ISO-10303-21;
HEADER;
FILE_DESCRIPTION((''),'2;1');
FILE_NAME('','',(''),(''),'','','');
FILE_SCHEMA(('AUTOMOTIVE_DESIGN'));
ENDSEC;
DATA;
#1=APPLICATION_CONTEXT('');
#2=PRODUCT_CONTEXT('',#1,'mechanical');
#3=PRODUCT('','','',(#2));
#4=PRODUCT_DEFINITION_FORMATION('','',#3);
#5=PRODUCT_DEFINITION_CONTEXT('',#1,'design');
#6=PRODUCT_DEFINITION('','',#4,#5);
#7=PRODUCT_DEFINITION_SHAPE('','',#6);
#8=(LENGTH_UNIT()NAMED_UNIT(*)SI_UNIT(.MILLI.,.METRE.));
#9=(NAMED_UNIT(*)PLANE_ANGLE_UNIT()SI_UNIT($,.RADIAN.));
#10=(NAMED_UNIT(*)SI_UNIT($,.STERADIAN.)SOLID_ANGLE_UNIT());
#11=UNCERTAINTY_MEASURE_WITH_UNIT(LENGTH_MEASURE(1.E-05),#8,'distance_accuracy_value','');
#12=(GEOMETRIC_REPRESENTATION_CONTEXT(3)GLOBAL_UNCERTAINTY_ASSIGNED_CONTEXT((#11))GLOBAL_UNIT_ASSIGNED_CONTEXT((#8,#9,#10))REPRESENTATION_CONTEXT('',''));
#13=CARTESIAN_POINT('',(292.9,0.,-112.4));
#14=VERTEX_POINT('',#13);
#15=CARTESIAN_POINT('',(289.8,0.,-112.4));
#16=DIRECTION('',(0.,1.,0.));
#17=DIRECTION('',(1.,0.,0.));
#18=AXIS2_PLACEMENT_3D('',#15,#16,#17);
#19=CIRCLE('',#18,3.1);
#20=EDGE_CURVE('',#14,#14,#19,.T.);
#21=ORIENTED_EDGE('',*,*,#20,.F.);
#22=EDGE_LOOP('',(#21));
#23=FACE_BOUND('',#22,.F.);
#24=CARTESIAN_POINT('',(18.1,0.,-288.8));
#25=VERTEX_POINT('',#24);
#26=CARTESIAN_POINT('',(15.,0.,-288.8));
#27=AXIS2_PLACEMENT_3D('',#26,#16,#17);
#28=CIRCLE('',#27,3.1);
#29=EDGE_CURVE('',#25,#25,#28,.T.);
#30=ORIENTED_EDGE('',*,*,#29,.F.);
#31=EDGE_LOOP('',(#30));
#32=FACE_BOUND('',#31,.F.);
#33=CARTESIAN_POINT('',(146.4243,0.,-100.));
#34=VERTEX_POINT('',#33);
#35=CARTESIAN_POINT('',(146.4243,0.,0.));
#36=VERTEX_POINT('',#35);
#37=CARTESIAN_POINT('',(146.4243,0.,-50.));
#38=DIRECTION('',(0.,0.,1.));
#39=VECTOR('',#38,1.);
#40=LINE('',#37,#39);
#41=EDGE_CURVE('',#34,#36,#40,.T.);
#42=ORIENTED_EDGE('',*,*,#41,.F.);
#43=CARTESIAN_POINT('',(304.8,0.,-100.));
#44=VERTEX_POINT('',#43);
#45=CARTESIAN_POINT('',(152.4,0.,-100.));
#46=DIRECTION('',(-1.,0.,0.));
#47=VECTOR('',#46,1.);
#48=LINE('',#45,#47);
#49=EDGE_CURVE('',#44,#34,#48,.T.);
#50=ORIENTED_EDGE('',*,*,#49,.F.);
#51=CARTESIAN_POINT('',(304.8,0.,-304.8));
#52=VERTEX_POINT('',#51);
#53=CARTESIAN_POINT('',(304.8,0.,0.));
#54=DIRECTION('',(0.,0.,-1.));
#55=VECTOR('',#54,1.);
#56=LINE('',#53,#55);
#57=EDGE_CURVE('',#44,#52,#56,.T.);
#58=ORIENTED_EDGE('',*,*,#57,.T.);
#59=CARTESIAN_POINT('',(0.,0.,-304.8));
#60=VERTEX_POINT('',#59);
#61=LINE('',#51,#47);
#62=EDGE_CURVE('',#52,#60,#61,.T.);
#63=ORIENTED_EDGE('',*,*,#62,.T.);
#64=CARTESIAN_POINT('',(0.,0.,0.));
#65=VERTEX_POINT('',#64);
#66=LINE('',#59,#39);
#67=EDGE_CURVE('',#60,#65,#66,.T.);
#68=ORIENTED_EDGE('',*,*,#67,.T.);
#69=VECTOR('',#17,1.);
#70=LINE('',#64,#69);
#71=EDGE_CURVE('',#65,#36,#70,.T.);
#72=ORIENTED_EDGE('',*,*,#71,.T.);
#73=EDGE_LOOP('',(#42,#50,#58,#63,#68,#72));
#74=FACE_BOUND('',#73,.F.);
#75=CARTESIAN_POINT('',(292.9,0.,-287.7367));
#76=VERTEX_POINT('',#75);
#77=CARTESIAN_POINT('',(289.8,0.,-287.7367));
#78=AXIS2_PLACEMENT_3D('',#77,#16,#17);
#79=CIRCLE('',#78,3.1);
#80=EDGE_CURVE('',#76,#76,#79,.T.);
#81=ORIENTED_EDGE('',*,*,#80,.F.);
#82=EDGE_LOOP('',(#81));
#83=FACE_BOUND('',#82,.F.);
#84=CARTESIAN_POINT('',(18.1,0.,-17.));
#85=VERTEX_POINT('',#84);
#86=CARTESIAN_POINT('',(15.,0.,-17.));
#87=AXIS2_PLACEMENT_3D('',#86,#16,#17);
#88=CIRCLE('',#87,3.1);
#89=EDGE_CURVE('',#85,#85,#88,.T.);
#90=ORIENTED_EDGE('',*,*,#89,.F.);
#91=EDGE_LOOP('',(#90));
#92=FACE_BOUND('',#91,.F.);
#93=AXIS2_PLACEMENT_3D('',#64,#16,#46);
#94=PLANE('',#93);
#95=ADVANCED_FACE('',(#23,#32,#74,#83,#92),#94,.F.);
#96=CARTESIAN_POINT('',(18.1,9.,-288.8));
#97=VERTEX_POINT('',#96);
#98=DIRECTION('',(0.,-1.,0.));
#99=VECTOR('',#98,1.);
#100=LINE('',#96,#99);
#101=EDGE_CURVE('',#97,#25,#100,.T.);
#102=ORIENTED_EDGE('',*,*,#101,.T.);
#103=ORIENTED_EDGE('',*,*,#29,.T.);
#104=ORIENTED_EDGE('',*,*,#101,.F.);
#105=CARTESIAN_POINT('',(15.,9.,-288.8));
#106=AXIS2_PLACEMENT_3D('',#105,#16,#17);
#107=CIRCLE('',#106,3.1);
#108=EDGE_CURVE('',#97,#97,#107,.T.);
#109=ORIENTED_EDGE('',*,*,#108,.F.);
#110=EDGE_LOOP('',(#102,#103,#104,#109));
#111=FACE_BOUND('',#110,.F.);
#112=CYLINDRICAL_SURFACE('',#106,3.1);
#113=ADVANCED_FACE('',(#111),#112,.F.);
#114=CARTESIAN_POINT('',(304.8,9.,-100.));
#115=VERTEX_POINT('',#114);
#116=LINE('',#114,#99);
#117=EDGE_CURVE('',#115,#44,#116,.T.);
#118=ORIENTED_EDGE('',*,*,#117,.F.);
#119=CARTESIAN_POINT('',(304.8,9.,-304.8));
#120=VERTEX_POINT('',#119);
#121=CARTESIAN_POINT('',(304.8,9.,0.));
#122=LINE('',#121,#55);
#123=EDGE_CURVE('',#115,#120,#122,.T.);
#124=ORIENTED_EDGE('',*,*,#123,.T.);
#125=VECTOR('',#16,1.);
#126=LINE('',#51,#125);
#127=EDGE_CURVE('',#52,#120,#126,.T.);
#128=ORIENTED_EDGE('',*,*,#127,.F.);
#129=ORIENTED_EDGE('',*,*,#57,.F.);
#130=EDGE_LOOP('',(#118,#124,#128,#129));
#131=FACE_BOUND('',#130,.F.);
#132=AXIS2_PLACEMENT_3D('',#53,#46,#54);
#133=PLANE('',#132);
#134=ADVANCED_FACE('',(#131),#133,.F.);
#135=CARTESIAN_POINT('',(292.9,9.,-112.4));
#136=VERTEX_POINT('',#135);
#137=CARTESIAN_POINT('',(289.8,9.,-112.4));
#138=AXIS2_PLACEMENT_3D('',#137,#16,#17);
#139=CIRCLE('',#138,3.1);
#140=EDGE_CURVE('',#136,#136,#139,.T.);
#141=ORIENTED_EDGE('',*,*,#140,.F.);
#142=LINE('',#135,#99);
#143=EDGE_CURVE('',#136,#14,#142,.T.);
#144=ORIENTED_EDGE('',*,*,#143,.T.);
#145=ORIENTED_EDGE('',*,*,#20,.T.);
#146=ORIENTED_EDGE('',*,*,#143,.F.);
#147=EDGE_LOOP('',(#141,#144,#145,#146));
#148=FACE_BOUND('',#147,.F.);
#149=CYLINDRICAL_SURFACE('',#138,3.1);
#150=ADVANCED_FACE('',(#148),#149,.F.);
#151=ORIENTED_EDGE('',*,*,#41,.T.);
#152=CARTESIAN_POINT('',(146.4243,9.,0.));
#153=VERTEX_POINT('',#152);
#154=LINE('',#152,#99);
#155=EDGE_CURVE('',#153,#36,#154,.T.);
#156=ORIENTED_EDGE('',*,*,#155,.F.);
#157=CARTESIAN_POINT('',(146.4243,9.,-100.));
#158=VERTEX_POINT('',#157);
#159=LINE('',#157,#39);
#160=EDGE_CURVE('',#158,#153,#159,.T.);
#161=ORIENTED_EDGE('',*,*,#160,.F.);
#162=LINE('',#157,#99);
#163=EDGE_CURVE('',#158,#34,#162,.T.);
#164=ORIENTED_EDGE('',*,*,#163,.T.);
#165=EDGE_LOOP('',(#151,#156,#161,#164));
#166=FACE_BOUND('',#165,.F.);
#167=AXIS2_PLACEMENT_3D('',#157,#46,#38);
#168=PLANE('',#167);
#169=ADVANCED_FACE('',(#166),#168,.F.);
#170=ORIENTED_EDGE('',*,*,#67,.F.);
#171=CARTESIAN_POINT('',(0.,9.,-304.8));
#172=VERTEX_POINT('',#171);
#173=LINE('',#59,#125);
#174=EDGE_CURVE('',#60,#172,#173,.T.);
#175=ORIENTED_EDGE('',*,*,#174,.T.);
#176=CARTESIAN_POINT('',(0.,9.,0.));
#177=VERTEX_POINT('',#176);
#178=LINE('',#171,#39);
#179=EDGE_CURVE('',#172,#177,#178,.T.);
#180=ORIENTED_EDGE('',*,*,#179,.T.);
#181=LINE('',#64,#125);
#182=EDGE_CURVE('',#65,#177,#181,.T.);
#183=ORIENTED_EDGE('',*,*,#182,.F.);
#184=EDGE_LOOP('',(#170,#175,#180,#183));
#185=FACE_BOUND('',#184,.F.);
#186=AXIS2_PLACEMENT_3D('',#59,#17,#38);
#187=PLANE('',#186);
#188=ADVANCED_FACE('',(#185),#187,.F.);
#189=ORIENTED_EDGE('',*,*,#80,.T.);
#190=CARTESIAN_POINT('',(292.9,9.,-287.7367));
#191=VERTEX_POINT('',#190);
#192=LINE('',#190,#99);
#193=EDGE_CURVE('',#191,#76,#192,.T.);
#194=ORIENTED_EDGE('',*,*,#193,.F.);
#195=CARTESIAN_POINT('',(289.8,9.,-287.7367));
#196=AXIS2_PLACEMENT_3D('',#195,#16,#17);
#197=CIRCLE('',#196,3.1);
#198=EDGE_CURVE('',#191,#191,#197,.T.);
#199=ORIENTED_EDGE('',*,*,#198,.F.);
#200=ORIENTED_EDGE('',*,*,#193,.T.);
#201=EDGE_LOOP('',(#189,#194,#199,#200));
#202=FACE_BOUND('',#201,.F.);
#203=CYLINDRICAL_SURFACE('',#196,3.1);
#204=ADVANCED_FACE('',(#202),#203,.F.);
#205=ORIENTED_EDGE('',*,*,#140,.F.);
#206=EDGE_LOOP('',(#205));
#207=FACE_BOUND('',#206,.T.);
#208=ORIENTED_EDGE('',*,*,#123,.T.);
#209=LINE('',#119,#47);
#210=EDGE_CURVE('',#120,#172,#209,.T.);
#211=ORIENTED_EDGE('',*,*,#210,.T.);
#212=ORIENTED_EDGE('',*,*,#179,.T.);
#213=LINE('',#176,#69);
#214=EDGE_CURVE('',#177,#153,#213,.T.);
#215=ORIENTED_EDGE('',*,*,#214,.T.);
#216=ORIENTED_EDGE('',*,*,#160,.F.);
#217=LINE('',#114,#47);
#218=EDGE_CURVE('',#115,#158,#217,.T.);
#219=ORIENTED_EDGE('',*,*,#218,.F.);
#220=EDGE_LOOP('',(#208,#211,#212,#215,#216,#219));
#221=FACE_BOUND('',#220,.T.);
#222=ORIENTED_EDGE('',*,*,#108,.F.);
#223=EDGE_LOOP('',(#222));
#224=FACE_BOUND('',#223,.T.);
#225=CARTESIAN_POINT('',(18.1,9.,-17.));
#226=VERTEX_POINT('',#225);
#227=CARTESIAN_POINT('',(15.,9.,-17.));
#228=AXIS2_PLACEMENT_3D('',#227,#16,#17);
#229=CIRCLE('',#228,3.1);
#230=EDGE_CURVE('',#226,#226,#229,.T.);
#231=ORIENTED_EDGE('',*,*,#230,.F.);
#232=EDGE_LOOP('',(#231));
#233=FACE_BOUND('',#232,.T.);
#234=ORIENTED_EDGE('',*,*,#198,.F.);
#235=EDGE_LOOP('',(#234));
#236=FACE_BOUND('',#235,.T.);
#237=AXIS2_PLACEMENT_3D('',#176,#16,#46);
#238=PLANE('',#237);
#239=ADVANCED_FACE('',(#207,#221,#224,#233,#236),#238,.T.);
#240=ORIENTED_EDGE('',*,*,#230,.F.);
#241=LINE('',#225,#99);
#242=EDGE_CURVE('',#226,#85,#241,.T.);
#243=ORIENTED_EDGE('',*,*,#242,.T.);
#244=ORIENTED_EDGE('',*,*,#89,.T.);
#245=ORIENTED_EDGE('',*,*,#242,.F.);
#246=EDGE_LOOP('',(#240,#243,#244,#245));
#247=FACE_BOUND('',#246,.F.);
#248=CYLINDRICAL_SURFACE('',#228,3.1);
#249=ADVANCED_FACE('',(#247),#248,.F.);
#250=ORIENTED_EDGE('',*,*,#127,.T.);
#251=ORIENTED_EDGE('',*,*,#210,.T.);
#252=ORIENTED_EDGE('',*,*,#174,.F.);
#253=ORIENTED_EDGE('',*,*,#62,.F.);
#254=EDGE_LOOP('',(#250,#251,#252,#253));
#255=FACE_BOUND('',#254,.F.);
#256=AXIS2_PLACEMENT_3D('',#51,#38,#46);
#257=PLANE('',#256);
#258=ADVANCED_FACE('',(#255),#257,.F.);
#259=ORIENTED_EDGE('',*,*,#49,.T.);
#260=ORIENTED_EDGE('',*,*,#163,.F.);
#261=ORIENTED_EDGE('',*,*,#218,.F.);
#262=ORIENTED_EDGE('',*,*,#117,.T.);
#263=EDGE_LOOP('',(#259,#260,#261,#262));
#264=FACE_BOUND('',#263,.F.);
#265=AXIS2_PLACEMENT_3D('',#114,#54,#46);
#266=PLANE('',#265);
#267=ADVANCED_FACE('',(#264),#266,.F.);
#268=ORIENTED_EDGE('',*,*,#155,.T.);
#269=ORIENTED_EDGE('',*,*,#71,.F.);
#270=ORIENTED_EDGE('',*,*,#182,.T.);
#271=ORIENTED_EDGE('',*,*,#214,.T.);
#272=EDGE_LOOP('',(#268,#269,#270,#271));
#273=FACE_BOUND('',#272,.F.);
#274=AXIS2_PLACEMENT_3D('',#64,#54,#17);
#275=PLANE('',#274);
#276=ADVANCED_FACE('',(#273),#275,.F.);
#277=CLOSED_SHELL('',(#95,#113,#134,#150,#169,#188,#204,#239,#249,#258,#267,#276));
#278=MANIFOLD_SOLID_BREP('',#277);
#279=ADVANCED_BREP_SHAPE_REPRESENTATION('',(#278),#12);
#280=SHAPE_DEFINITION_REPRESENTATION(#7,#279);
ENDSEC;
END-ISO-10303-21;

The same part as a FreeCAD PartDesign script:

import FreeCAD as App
import Part
import Sketcher

V = App.Vector
Q = App.Units.Quantity


def add_polygon(sketch, points):
    """Adds a closed chain of lines whose ends are joined by coincident constraints."""
    first, n = sketch.GeometryCount, len(points)
    for a, b in zip(points, points[1:] + points[:1]):
        sketch.addGeometry(Part.LineSegment(App.Vector(*a, 0), App.Vector(*b, 0)), False)
    for i in range(n):
        sketch.addConstraint(Sketcher.Constraint("Coincident", first + i, 2, first + (i + 1) % n, 1))

doc = App.newDocument("Part")
body = doc.addObject("PartDesign::Body", "Body")

sketch1 = body.newObject("Sketcher::SketchObject", "Sketch")
sketch1.AttachmentSupport = (doc.getObject("XZ_Plane"), [""])
sketch1.MapMode = "FlatFace"
add_polygon(sketch1, [(0, -305), (0, 0), (305, 0), (305, -305)])
sketch1.addConstraint([
    Sketcher.Constraint("Vertical", 0),
    Sketcher.Constraint("Horizontal", 1),
    Sketcher.Constraint("Vertical", 2),
    Sketcher.Constraint("Horizontal", 3),
    Sketcher.Constraint("Coincident", 0, 2, -1, 1),
    Sketcher.Constraint("Equal", 3, 0),
    Sketcher.Constraint("DistanceX", 1, 1, 1, 2, Q("12 in")),
])
pad1 = body.newObject("PartDesign::Pad", "Pad")
pad1.Profile = sketch1
pad1.Length = 9
pad1.Reversed = True

sketch2 = body.newObject("Sketcher::SketchObject", "Sketch001")
sketch2.AttachmentSupport = (doc.getObject("XZ_Plane"), [""])
sketch2.MapMode = "FlatFace"
sketch2.AttachmentOffset = App.Placement(V(0, 0, -9), App.Rotation())
add_polygon(sketch2, [(146, 0), (305, 0), (305, -100), (146, -100)])
sketch2.addConstraint([
    Sketcher.Constraint("Horizontal", 0),
    Sketcher.Constraint("Vertical", 1),
    Sketcher.Constraint("Horizontal", 2),
    Sketcher.Constraint("Vertical", 3),
    Sketcher.Constraint("PointOnObject", 0, 2, -1),
    Sketcher.Constraint("DistanceX", -1, 1, 0, 2, Q("12 in")),
    Sketcher.Constraint("DistanceY", 1, 2, 1, 1, Q("3.937 in")),
    Sketcher.Constraint("DistanceX", 0, 1, 0, 2, Q("158.3757 mm")),
])
pocket1 = body.newObject("PartDesign::Pocket", "Pocket")
pocket1.Profile = sketch2
pocket1.Length = Q("0.3937008 in")
pocket1.Reversed = True

sketch3 = body.newObject("Sketcher::SketchObject", "Sketch002")
sketch3.AttachmentSupport = (doc.getObject("XZ_Plane"), [""])
sketch3.MapMode = "FlatFace"
sketch3.AttachmentOffset = App.Placement(V(0, 0, -9), App.Rotation())
sketch3.addGeometry([
    Part.Circle(V(15, -17, 0), V(0, 0, 1), 3.1),
    Part.Circle(V(15, -288.8, 0), V(0, 0, 1), 3.1),
    Part.Circle(V(289.8, -287.7, 0), V(0, 0, 1), 3.1),
    Part.Circle(V(289.8, -112.4, 0), V(0, 0, 1), 3.1),
], False)
sketch3.addConstraint([
    Sketcher.Constraint("Equal", 0, 1),
    Sketcher.Constraint("Equal", 1, 2),
    Sketcher.Constraint("Equal", 2, 3),
    Sketcher.Constraint("Vertical", 0, 3, 1, 3),
    Sketcher.Constraint("Vertical", 2, 3, 3, 3),
    Sketcher.Constraint("Diameter", 0, Q("0.2441 in")),
    Sketcher.Constraint("DistanceY", 0, 3, -1, 1, Q("0.6693 in")),
    Sketcher.Constraint("DistanceY", 3, 3, -1, 1, Q("4.4252 in")),
    Sketcher.Constraint("DistanceX", 1, 3, 2, 3, Q("10.8189 in")),
    Sketcher.Constraint("DistanceX", -1, 1, 0, 3, Q("15 mm")),
    Sketcher.Constraint("DistanceY", 1, 3, -1, 1, Q("288.8 mm")),
    Sketcher.Constraint("DistanceY", 2, 3, -1, 1, Q("287.7367 mm")),
])
pocket2 = body.newObject("PartDesign::Pocket", "Pocket001")
pocket2.Profile = sketch3
pocket2.Type = "ThroughAll"
pocket2.Reversed = True

doc.recompute()
